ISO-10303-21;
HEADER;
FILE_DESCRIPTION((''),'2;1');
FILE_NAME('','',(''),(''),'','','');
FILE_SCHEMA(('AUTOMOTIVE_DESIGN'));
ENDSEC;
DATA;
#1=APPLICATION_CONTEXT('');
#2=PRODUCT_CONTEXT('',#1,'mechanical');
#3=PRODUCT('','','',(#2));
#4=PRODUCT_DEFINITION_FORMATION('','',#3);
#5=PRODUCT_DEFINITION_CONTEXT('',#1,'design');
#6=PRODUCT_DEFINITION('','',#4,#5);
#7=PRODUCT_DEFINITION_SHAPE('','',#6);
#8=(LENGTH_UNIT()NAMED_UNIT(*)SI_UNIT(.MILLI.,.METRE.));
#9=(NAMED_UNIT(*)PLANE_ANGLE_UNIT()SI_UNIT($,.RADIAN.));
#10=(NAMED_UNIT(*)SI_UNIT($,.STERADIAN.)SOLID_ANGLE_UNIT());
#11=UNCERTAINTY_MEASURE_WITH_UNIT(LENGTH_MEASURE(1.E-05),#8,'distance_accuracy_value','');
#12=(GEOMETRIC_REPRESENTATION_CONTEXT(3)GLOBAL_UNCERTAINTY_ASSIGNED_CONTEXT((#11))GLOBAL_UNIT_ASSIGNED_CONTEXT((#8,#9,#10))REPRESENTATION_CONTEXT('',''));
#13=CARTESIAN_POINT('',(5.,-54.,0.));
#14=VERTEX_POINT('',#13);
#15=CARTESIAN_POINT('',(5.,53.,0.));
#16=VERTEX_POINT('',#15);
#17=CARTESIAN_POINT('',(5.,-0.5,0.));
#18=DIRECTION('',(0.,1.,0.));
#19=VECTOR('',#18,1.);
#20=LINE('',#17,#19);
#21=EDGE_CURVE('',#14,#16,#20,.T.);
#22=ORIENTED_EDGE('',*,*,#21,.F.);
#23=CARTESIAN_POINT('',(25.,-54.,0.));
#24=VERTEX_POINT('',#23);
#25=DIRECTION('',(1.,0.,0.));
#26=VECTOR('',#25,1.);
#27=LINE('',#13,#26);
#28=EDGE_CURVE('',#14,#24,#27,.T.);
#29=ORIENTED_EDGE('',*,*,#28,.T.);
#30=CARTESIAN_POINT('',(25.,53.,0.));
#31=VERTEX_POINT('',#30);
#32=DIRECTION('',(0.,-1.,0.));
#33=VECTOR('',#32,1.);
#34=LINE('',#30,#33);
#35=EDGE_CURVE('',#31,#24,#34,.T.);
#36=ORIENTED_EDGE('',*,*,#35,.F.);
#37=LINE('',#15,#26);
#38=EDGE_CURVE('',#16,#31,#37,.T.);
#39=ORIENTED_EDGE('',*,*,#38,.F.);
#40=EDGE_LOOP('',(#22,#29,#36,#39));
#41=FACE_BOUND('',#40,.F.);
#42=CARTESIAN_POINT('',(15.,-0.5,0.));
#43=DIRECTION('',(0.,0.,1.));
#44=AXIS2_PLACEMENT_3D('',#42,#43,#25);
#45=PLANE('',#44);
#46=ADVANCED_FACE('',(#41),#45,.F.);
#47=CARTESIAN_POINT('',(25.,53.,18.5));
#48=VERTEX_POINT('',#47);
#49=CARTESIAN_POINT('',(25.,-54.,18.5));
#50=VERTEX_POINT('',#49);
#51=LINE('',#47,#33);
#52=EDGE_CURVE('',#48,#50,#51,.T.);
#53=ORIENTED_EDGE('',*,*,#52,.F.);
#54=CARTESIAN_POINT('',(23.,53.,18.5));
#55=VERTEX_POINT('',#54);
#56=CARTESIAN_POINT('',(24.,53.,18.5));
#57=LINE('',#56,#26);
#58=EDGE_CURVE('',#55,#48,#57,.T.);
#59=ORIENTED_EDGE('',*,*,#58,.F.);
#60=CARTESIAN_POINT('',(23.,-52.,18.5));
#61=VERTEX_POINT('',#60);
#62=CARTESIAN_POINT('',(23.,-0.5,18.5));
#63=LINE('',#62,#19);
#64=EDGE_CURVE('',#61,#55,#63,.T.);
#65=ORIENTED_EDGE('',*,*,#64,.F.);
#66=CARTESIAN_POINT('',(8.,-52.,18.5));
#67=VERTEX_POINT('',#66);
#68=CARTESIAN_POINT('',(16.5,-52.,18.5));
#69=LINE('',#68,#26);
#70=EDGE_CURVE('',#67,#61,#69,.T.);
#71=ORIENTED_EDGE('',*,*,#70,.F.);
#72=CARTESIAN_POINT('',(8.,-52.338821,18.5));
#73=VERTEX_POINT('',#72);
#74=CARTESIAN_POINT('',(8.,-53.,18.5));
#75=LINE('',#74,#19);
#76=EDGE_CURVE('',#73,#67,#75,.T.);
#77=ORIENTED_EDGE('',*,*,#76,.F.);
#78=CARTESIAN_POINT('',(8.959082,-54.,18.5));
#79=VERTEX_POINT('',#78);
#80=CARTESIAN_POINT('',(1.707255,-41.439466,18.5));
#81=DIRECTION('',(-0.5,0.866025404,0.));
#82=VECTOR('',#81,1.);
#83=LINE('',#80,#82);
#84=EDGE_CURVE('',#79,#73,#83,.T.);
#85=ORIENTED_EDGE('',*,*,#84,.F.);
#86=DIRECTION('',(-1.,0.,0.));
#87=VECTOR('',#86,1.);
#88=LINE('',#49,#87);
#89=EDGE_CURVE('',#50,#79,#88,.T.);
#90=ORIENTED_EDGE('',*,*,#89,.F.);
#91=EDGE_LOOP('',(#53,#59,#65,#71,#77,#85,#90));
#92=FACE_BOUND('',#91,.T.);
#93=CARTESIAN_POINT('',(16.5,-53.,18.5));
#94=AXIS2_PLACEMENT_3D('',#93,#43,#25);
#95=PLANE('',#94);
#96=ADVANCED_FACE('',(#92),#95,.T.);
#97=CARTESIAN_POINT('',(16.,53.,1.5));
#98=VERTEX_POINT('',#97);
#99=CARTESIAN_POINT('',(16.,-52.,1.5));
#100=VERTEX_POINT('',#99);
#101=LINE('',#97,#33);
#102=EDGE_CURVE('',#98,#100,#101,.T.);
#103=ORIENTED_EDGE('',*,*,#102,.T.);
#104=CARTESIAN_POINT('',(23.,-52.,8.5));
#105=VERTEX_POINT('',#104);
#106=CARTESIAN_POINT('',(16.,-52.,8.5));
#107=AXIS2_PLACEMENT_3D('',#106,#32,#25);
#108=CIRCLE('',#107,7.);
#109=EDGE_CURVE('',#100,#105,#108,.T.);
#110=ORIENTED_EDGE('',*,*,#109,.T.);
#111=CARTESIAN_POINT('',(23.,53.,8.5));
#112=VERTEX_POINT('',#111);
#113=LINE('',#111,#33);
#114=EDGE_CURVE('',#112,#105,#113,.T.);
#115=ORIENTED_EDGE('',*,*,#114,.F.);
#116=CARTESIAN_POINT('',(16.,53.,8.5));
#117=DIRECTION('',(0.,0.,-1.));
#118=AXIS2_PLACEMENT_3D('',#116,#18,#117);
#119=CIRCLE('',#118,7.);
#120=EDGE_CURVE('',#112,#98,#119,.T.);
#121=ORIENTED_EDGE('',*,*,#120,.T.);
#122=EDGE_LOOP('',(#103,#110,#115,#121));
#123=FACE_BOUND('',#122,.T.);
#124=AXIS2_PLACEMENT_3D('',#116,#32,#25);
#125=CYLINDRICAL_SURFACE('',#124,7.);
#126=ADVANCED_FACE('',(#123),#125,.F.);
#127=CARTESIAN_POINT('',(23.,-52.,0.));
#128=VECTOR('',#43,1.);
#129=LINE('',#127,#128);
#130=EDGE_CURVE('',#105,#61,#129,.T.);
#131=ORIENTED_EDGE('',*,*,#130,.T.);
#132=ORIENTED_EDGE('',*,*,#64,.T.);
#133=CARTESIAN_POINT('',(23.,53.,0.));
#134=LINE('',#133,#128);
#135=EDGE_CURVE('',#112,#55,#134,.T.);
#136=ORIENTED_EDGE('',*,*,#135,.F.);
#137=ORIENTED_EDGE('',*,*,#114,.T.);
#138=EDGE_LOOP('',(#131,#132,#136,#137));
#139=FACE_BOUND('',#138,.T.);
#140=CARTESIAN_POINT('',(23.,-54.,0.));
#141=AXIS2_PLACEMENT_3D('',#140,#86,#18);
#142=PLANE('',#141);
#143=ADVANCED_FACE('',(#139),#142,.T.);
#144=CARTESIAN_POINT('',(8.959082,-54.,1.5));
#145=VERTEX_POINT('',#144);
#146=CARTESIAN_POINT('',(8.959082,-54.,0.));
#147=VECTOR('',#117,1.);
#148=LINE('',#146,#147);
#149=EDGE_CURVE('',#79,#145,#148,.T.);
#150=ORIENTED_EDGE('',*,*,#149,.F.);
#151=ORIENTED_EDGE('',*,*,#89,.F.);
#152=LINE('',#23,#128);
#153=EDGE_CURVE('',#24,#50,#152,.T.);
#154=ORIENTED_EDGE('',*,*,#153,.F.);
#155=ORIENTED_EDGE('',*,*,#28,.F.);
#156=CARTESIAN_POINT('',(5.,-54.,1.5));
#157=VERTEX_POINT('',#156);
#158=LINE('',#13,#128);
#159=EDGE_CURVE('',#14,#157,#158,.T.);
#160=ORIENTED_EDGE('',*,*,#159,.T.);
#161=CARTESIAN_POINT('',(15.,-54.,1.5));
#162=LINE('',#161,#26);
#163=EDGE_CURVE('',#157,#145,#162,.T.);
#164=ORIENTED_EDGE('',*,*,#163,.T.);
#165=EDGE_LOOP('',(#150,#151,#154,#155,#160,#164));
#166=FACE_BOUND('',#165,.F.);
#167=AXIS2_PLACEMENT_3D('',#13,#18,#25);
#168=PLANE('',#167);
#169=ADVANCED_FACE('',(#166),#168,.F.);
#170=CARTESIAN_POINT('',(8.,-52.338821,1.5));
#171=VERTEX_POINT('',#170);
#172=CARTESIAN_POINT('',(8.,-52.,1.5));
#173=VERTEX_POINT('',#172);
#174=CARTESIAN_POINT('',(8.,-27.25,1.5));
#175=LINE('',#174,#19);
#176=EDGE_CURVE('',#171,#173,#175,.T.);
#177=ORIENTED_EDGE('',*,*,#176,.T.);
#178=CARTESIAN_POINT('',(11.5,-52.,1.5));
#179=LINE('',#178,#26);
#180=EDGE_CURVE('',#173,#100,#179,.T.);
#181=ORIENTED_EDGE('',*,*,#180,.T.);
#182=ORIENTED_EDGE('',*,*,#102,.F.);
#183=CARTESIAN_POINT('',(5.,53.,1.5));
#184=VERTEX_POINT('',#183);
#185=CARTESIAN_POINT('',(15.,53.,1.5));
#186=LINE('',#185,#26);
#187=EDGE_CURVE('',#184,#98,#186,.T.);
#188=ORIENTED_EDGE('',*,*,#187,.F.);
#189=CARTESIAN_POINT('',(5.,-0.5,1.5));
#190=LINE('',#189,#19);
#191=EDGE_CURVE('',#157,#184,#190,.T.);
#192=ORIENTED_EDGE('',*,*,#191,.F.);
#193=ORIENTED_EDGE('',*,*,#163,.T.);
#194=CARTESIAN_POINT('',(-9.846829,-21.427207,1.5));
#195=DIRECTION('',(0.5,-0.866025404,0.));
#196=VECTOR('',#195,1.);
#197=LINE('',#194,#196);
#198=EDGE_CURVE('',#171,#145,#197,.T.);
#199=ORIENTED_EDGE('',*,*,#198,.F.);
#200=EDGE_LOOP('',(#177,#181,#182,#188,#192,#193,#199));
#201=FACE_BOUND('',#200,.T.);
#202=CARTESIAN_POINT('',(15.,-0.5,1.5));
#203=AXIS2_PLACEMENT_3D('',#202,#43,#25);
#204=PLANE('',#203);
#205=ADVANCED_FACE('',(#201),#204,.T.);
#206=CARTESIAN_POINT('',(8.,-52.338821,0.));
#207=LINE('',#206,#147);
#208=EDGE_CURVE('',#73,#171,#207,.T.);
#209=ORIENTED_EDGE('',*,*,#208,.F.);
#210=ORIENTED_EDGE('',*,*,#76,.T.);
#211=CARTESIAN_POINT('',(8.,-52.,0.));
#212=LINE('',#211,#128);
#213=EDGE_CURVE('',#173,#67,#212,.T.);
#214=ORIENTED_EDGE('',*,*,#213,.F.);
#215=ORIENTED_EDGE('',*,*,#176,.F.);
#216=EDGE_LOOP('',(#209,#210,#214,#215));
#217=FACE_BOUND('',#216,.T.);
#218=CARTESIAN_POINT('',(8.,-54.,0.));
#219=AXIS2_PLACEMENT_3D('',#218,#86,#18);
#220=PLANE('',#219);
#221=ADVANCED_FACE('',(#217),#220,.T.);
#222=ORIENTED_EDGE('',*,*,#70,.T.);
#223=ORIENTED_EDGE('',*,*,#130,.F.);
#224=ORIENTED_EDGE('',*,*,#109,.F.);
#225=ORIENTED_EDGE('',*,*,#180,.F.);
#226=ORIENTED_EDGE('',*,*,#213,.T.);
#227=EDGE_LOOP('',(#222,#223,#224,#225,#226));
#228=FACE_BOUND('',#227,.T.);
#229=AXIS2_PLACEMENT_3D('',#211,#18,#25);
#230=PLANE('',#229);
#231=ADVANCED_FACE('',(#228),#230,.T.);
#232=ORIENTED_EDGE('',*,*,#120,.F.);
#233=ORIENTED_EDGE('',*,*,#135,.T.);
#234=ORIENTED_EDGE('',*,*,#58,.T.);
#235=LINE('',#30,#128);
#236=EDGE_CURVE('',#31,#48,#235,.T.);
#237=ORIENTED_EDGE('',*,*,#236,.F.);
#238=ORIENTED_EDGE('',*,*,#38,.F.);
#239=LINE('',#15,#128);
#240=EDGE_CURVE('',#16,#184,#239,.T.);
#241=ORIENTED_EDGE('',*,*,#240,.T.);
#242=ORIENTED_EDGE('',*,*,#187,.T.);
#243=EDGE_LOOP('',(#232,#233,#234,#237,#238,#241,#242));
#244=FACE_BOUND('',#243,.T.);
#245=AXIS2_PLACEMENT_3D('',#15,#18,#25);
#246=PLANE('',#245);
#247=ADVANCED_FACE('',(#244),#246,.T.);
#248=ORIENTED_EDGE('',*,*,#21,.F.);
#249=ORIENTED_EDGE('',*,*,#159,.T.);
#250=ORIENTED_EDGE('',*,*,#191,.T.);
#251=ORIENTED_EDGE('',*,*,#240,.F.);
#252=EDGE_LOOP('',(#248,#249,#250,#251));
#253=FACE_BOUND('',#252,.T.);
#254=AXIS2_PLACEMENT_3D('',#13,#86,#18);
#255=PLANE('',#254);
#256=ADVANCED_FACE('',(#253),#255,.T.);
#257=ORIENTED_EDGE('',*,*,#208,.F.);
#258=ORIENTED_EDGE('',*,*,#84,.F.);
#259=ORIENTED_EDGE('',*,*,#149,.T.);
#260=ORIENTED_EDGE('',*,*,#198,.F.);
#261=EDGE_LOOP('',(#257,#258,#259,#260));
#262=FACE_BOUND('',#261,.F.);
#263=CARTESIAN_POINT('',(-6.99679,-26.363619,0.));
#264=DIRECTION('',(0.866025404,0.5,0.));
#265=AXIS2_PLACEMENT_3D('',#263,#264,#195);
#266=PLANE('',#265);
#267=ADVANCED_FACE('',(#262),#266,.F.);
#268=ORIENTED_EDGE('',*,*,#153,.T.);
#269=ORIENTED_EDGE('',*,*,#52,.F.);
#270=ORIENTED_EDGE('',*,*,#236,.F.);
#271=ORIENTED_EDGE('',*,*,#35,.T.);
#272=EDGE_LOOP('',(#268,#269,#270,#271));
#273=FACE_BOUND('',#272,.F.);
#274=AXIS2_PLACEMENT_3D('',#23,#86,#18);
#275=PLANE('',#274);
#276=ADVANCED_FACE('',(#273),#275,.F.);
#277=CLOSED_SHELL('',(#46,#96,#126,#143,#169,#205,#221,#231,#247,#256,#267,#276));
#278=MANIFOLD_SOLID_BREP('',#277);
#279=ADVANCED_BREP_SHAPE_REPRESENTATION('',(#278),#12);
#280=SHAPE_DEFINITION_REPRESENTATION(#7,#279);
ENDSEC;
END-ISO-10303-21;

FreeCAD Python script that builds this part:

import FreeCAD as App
import Part
import Sketcher

V = App.Vector


def edges_at(feature, points):
    """Names of the edges that pass closest to the given points."""
    edges = feature.Shape.Edges
    near = lambda p: min(range(len(edges)), key=lambda i: edges[i].distToShape(Part.Vertex(*p))[0])
    return sorted({f"Edge{near(p) + 1}" for p in points})


def add_polygon(sketch, points):
    """Adds a closed chain of lines whose ends are joined by coincident constraints."""
    first, n = sketch.GeometryCount, len(points)
    for a, b in zip(points, points[1:] + points[:1]):
        sketch.addGeometry(Part.LineSegment(App.Vector(*a, 0), App.Vector(*b, 0)), False)
    for i in range(n):
        sketch.addConstraint(Sketcher.Constraint("Coincident", first + i, 2, first + (i + 1) % n, 1))

doc = App.newDocument("Part")
params = doc.addObject("Spreadsheet::Sheet", "Params")
for row, (alias, value) in enumerate([
    ("sketch1_width", "2 mm"),
    ("sketch1_height", "107 mm"),
    ("pad1_length", "18.5 mm"),
    ("sketch2_width", "20 mm"),
    ("sketch2_height", "107 mm"),
    ("pad2_length", "1.5 mm"),
    ("fillet_radius", "7 mm"),
    ("sketch3_width", "47 mm"),
    ("sketch3_height", "18 mm"),
    ("pad3_length", "20 mm"),
    ("sketch4_width", "17 mm"),
    ("sketch4_height", "2 mm"),
    ("pad4_length", "18.5 mm"),
], start=1):
    params.set(f"A{row}", alias)
    params.set(f"B{row}", "=" + value)
    params.setAlias(f"B{row}", alias)

body = doc.addObject("PartDesign::Body", "Body")

# Sketch on XY plane
sketch1 = body.newObject("Sketcher::SketchObject", "Sketch")
sketch1.AttachmentSupport = (doc.getObject("XY_Plane"), [""])
sketch1.MapMode = "FlatFace"
add_polygon(sketch1, [(23, 53), (23, -54), (25, -54), (25, 53)])  # lines 0-3
sketch1.addConstraint([
    Sketcher.Constraint("Vertical", 0),
    Sketcher.Constraint("Horizontal", 1),
    Sketcher.Constraint("Vertical", 2),
    Sketcher.Constraint("Horizontal", 3),
    Sketcher.Constraint("DistanceX", 1, 1, 1, 2, 2.0),
    Sketcher.Constraint("DistanceY", 0, 2, 0, 1, 107.0),
    Sketcher.Constraint("DistanceX", -1, 1, 0, 2, 23.0),
    Sketcher.Constraint("DistanceY", 0, 2, -1, 1, 54.0),
])
sketch1.setExpression("Constraints[8]", "Params.sketch1_width")
sketch1.setExpression("Constraints[9]", "Params.sketch1_height")
pad1 = body.newObject("PartDesign::Pad", "Pad")
pad1.Profile = sketch1
pad1.setExpression("Length", "Params.pad1_length")
body2 = doc.addObject("PartDesign::Body", "Body001")

# Sketch on XY plane
sketch2 = body2.newObject("Sketcher::SketchObject", "Sketch001")
sketch2.AttachmentSupport = (doc.getObject("XY_Plane001"), [""])
sketch2.MapMode = "FlatFace"
add_polygon(sketch2, [(5, 53), (5, -54), (25, -54), (25, 53)])  # lines 0-3
sketch2.addConstraint([
    Sketcher.Constraint("Vertical", 0),
    Sketcher.Constraint("Horizontal", 1),
    Sketcher.Constraint("Vertical", 2),
    Sketcher.Constraint("Horizontal", 3),
    Sketcher.Constraint("DistanceX", 1, 1, 1, 2, 20.0),
    Sketcher.Constraint("DistanceY", 0, 2, 0, 1, 107.0),
    Sketcher.Constraint("DistanceX", -1, 1, 0, 2, 5.0),
    Sketcher.Constraint("DistanceY", 0, 2, -1, 1, 54.0),
])
sketch2.setExpression("Constraints[8]", "Params.sketch2_width")
sketch2.setExpression("Constraints[9]", "Params.sketch2_height")
pad2 = body2.newObject("PartDesign::Pad", "Pad001")
pad2.Profile = sketch2
pad2.setExpression("Length", "Params.pad2_length")
doc.recompute()

boolean = body2.newObject("PartDesign::Boolean", "Boolean")
boolean.Type = "Fuse"
boolean.addObjects([body])
doc.recompute()

fillet = body2.newObject("PartDesign::Fillet", "Fillet")
fillet.Base = (boolean, edges_at(boolean, [(23, -0.5, 1.5)]))
fillet.setExpression("Radius", "Params.fillet_radius")
body3 = doc.addObject("PartDesign::Body", "Body002")

# Sketch on XY plane
sketch3 = body3.newObject("Sketcher::SketchObject", "Sketch002")
sketch3.AttachmentSupport = (doc.getObject("XY_Plane002"), [""])
sketch3.MapMode = "FlatFace"
add_polygon(sketch3, [(0, 18), (0, 0), (47, 0), (47, 18)])  # lines 0-3
sketch3.addConstraint([
    Sketcher.Constraint("Vertical", 0),
    Sketcher.Constraint("Horizontal", 1),
    Sketcher.Constraint("Vertical", 2),
    Sketcher.Constraint("Horizontal", 3),
    Sketcher.Constraint("Coincident", 0, 2, -1, 1),
    Sketcher.Constraint("DistanceX", 1, 1, 1, 2, 47.0),
    Sketcher.Constraint("DistanceY", 0, 2, 0, 1, 18.0),
])
sketch3.setExpression("Constraints[9]", "Params.sketch3_width")
sketch3.setExpression("Constraints[10]", "Params.sketch3_height")
pad3 = body3.newObject("PartDesign::Pad", "Pad002")
pad3.Profile = sketch3
pad3.setExpression("Length", "Params.pad3_length")
body4 = doc.addObject("PartDesign::Body", "Body003")
doc.recompute()

body3.Placement = App.Placement(V(-22.585247, -35.363619, 0), App.Rotation(V(0, 0, -1), 60))
boolean2 = body4.newObject("PartDesign::Boolean", "Boolean001")
boolean2.Type = "Fuse"
boolean2.addObjects([body3])
body5 = doc.addObject("PartDesign::Body", "Body004")

# Sketch on XY plane
sketch4 = body5.newObject("Sketcher::SketchObject", "Sketch003")
sketch4.AttachmentSupport = (doc.getObject("XY_Plane004"), [""])
sketch4.MapMode = "FlatFace"
add_polygon(sketch4, [(8, -52), (8, -54), (25, -54), (25, -52)])  # lines 0-3
sketch4.addConstraint([
    Sketcher.Constraint("Vertical", 0),
    Sketcher.Constraint("Horizontal", 1),
    Sketcher.Constraint("Vertical", 2),
    Sketcher.Constraint("Horizontal", 3),
    Sketcher.Constraint("DistanceX", 1, 1, 1, 2, 17.0),
    Sketcher.Constraint("DistanceY", 0, 2, 0, 1, 2.0),
    Sketcher.Constraint("DistanceX", -1, 1, 0, 2, 8.0),
    Sketcher.Constraint("DistanceY", 0, 2, -1, 1, 54.0),
])
sketch4.setExpression("Constraints[8]", "Params.sketch4_width")
sketch4.setExpression("Constraints[9]", "Params.sketch4_height")
pad4 = body5.newObject("PartDesign::Pad", "Pad003")
pad4.Profile = sketch4
pad4.setExpression("Length", "Params.pad4_length")
doc.recompute()

boolean3 = body5.newObject("PartDesign::Boolean", "Boolean002")
boolean3.Type = "Cut"
boolean3.addObjects([body4])
doc.recompute()

boolean4 = body5.newObject("PartDesign::Boolean", "Boolean003")
boolean4.Type = "Fuse"
boolean4.addObjects([body2])

doc.recompute()
